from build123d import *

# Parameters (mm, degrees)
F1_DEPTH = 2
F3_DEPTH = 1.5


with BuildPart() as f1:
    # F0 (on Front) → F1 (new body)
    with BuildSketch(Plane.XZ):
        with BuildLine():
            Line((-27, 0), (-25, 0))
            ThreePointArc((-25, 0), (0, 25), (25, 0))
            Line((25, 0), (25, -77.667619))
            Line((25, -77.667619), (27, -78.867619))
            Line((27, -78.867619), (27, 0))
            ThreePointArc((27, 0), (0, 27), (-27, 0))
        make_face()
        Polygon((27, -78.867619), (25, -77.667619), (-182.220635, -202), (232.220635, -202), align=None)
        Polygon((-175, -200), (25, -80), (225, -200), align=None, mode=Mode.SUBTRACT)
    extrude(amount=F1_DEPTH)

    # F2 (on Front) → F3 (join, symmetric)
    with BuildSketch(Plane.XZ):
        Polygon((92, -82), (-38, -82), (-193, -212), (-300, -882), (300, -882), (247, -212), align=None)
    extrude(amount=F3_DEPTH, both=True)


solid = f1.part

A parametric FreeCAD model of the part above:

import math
import FreeCAD as App
import Part
import Sketcher

V = App.Vector

doc = App.newDocument("Part")
params = doc.addObject("Spreadsheet::Sheet", "Params")
for row, (alias, value) in enumerate([
    ("sketch1_radius", "25 mm"),
    ("sketch1_radius2", "27 mm"),
    ("sketch1_width", "400 mm"),
    ("pad1_length", "2 mm"),
    ("sketch2_width", "130 mm"),
    ("sketch2_width2", "600 mm"),
    ("pad2_length", "3 mm"),
], start=1):
    params.set(f"A{row}", alias)
    params.set(f"B{row}", "=" + value)
    params.setAlias(f"B{row}", alias)

body = doc.addObject("PartDesign::Body", "Body")

# Sketch on XZ plane
sketch1 = body.newObject("Sketcher::SketchObject", "Sketch")
sketch1.AttachmentSupport = (doc.getObject("XZ_Plane"), [""])
sketch1.MapMode = "FlatFace"
sketch1.addGeometry([
    Part.LineSegment(V(-27, 0, 0), V(-25, 0, 0)),  # 0
    Part.ArcOfCircle(Part.Circle(V(0, 0, 0), V(0, 0, 1), 25), math.radians(0), math.radians(180)),  # 1
    Part.LineSegment(V(25, 0, 0), V(25, -77.7, 0)),  # 2
    Part.LineSegment(V(25, -77.7, 0), V(-182.2, -202, 0)),  # 3
    Part.LineSegment(V(-182.2, -202, 0), V(232.2, -202, 0)),  # 4
    Part.LineSegment(V(232.2, -202, 0), V(27, -78.9, 0)),  # 5
    Part.LineSegment(V(27, -78.9, 0), V(27, 0, 0)),  # 6
    Part.ArcOfCircle(Part.Circle(V(0, 0, 0), V(0, 0, 1), 27), math.radians(0), math.radians(180)),  # 7
    Part.LineSegment(V(225, -200, 0), V(-175, -200, 0)),  # 8
    Part.LineSegment(V(-175, -200, 0), V(25, -80, 0)),  # 9
    Part.LineSegment(V(25, -80, 0), V(225, -200, 0)),  # 10
], False)
sketch1.addConstraint([
    Sketcher.Constraint("Coincident", 0, 2, 1, 2),
    Sketcher.Constraint("Tangent", 1, 1, 2, 1),
    Sketcher.Constraint("Coincident", 2, 2, 3, 1),
    Sketcher.Constraint("Coincident", 3, 2, 4, 1),
    Sketcher.Constraint("Coincident", 4, 2, 5, 1),
    Sketcher.Constraint("Coincident", 5, 2, 6, 1),
    Sketcher.Constraint("Tangent", 6, 2, 7, 1),
    Sketcher.Constraint("Coincident", 7, 2, 0, 1),
    Sketcher.Constraint("Coincident", 8, 2, 9, 1),
    Sketcher.Constraint("Coincident", 9, 2, 10, 1),
    Sketcher.Constraint("Coincident", 10, 2, 8, 1),
    Sketcher.Constraint("Horizontal", 0),
    Sketcher.Constraint("Vertical", 2),
    Sketcher.Constraint("Horizontal", 4),
    Sketcher.Constraint("Vertical", 6),
    Sketcher.Constraint("Horizontal", 8),
    Sketcher.Constraint("Coincident", 1, 3, -1, 1),
    Sketcher.Constraint("Coincident", 7, 3, -1, 1),
    Sketcher.Constraint("PointOnObject", 0, 2, -1),
    Sketcher.Constraint("Parallel", 3, 9),
    Sketcher.Constraint("Parallel", 5, 10),
    Sketcher.Constraint("Vertical", 2, 2, 9, 2),
    Sketcher.Constraint("Equal", 9, 10),
    Sketcher.Constraint("Radius", 1, 25.0),
    Sketcher.Constraint("Radius", 7, 27.0),
    Sketcher.Constraint("DistanceX", 8, 2, 8, 1, 400.0),
    Sketcher.Constraint("DistanceY", 3, 2, -1, 1, 202.0),
    Sketcher.Constraint("DistanceY", 8, 2, -1, 1, 200.0),
    Sketcher.Constraint("DistanceY", 9, 2, -1, 1, 80.0),
    Sketcher.Constraint("DistanceY", 5, 2, 2, 2, 1.2),
    Sketcher.Constraint("DistanceX", 4, 1, 4, 2, 414.44127),
])
sketch1.setExpression("Constraints[23]", "Params.sketch1_radius")
sketch1.setExpression("Constraints[24]", "Params.sketch1_radius2")
sketch1.setExpression("Constraints[25]", "Params.sketch1_width")
pad1 = body.newObject("PartDesign::Pad", "Pad")
pad1.Profile = sketch1
pad1.setExpression("Length", "Params.pad1_length")

# Sketch on XZ plane
sketch2 = body.newObject("Sketcher::SketchObject", "Sketch001")
sketch2.AttachmentSupport = (doc.getObject("XZ_Plane"), [""])
sketch2.MapMode = "FlatFace"
sketch2.addGeometry([
    Part.LineSegment(V(92, -82, 0), V(-38, -82, 0)),  # 0
    Part.LineSegment(V(-38, -82, 0), V(-193, -212, 0)),  # 1
    Part.LineSegment(V(-193, -212, 0), V(-300, -882, 0)),  # 2
    Part.LineSegment(V(-300, -882, 0), V(300, -882, 0)),  # 3
    Part.LineSegment(V(300, -882, 0), V(247, -212, 0)),  # 4
    Part.LineSegment(V(247, -212, 0), V(92, -82, 0)),  # 5
], False)
sketch2.addConstraint([
    Sketcher.Constraint("Coincident", 0, 2, 1, 1),
    Sketcher.Constraint("Coincident", 1, 2, 2, 1),
    Sketcher.Constraint("Coincident", 2, 2, 3, 1),
    Sketcher.Constraint("Coincident", 3, 2, 4, 1),
    Sketcher.Constraint("Coincident", 4, 2, 5, 1),
    Sketcher.Constraint("Coincident", 5, 2, 0, 1),
    Sketcher.Constraint("Horizontal", 0),
    Sketcher.Constraint("Horizontal", 3),
    Sketcher.Constraint("Horizontal", 1, 2, 4, 2),
    Sketcher.Constraint("Equal", 1, 5),
    Sketcher.Constraint("DistanceX", 0, 2, 0, 1, 130.0),
    Sketcher.Constraint("DistanceX", 3, 1, 3, 2, 600.0),
    Sketcher.Constraint("DistanceX", 0, 2, -1, 1, 38.0),
    Sketcher.Constraint("DistanceY", 0, 2, -1, 1, 82.0),
    Sketcher.Constraint("DistanceX", 1, 2, -1, 1, 193.0),
    Sketcher.Constraint("DistanceY", 1, 2, -1, 1, 212.0),
    Sketcher.Constraint("DistanceX", 2, 2, -1, 1, 300.0),
    Sketcher.Constraint("DistanceY", 2, 2, -1, 1, 882.0),
])
sketch2.setExpression("Constraints[10]", "Params.sketch2_width")
sketch2.setExpression("Constraints[11]", "Params.sketch2_width2")
pad2 = body.newObject("PartDesign::Pad", "Pad001")
pad2.Profile = sketch2
pad2.setExpression("Length", "Params.pad2_length")
pad2.Midplane = True

doc.recompute()
